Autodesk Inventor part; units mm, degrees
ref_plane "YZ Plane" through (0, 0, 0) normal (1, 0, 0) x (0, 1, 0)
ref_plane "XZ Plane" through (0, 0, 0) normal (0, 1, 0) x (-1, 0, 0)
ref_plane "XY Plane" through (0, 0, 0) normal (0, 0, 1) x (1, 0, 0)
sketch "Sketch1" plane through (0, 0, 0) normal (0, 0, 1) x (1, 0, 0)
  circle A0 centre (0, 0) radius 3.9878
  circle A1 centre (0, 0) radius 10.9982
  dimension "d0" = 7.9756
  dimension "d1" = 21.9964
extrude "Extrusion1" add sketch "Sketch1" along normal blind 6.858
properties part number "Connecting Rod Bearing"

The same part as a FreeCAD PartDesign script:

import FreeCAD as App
import Part
import Sketcher

V = App.Vector
Q = App.Units.Quantity

doc = App.newDocument("Part")
body = doc.addObject("PartDesign::Body", "Body")

sketch1 = body.newObject("Sketcher::SketchObject", "Sketch")
sketch1.AttachmentSupport = (doc.getObject("XY_Plane"), [""])
sketch1.MapMode = "FlatFace"
sketch1.addGeometry([
    Part.Circle(V(0, 0, 0), V(0, 0, 1), 11),
    Part.Circle(V(0, 0, 0), V(0, 0, 1), 4),
], False)
sketch1.addConstraint([
    Sketcher.Constraint("Coincident", 0, 3, -1, 1),
    Sketcher.Constraint("Coincident", 1, 3, -1, 1),
    Sketcher.Constraint("Diameter", 0, Q("0.866 in")),
    Sketcher.Constraint("Diameter", 1, Q("0.314 in")),
])
pad1 = body.newObject("PartDesign::Pad", "Pad")
pad1.Profile = sketch1
pad1.Length = Q("0.27 in")

doc.recompute()
